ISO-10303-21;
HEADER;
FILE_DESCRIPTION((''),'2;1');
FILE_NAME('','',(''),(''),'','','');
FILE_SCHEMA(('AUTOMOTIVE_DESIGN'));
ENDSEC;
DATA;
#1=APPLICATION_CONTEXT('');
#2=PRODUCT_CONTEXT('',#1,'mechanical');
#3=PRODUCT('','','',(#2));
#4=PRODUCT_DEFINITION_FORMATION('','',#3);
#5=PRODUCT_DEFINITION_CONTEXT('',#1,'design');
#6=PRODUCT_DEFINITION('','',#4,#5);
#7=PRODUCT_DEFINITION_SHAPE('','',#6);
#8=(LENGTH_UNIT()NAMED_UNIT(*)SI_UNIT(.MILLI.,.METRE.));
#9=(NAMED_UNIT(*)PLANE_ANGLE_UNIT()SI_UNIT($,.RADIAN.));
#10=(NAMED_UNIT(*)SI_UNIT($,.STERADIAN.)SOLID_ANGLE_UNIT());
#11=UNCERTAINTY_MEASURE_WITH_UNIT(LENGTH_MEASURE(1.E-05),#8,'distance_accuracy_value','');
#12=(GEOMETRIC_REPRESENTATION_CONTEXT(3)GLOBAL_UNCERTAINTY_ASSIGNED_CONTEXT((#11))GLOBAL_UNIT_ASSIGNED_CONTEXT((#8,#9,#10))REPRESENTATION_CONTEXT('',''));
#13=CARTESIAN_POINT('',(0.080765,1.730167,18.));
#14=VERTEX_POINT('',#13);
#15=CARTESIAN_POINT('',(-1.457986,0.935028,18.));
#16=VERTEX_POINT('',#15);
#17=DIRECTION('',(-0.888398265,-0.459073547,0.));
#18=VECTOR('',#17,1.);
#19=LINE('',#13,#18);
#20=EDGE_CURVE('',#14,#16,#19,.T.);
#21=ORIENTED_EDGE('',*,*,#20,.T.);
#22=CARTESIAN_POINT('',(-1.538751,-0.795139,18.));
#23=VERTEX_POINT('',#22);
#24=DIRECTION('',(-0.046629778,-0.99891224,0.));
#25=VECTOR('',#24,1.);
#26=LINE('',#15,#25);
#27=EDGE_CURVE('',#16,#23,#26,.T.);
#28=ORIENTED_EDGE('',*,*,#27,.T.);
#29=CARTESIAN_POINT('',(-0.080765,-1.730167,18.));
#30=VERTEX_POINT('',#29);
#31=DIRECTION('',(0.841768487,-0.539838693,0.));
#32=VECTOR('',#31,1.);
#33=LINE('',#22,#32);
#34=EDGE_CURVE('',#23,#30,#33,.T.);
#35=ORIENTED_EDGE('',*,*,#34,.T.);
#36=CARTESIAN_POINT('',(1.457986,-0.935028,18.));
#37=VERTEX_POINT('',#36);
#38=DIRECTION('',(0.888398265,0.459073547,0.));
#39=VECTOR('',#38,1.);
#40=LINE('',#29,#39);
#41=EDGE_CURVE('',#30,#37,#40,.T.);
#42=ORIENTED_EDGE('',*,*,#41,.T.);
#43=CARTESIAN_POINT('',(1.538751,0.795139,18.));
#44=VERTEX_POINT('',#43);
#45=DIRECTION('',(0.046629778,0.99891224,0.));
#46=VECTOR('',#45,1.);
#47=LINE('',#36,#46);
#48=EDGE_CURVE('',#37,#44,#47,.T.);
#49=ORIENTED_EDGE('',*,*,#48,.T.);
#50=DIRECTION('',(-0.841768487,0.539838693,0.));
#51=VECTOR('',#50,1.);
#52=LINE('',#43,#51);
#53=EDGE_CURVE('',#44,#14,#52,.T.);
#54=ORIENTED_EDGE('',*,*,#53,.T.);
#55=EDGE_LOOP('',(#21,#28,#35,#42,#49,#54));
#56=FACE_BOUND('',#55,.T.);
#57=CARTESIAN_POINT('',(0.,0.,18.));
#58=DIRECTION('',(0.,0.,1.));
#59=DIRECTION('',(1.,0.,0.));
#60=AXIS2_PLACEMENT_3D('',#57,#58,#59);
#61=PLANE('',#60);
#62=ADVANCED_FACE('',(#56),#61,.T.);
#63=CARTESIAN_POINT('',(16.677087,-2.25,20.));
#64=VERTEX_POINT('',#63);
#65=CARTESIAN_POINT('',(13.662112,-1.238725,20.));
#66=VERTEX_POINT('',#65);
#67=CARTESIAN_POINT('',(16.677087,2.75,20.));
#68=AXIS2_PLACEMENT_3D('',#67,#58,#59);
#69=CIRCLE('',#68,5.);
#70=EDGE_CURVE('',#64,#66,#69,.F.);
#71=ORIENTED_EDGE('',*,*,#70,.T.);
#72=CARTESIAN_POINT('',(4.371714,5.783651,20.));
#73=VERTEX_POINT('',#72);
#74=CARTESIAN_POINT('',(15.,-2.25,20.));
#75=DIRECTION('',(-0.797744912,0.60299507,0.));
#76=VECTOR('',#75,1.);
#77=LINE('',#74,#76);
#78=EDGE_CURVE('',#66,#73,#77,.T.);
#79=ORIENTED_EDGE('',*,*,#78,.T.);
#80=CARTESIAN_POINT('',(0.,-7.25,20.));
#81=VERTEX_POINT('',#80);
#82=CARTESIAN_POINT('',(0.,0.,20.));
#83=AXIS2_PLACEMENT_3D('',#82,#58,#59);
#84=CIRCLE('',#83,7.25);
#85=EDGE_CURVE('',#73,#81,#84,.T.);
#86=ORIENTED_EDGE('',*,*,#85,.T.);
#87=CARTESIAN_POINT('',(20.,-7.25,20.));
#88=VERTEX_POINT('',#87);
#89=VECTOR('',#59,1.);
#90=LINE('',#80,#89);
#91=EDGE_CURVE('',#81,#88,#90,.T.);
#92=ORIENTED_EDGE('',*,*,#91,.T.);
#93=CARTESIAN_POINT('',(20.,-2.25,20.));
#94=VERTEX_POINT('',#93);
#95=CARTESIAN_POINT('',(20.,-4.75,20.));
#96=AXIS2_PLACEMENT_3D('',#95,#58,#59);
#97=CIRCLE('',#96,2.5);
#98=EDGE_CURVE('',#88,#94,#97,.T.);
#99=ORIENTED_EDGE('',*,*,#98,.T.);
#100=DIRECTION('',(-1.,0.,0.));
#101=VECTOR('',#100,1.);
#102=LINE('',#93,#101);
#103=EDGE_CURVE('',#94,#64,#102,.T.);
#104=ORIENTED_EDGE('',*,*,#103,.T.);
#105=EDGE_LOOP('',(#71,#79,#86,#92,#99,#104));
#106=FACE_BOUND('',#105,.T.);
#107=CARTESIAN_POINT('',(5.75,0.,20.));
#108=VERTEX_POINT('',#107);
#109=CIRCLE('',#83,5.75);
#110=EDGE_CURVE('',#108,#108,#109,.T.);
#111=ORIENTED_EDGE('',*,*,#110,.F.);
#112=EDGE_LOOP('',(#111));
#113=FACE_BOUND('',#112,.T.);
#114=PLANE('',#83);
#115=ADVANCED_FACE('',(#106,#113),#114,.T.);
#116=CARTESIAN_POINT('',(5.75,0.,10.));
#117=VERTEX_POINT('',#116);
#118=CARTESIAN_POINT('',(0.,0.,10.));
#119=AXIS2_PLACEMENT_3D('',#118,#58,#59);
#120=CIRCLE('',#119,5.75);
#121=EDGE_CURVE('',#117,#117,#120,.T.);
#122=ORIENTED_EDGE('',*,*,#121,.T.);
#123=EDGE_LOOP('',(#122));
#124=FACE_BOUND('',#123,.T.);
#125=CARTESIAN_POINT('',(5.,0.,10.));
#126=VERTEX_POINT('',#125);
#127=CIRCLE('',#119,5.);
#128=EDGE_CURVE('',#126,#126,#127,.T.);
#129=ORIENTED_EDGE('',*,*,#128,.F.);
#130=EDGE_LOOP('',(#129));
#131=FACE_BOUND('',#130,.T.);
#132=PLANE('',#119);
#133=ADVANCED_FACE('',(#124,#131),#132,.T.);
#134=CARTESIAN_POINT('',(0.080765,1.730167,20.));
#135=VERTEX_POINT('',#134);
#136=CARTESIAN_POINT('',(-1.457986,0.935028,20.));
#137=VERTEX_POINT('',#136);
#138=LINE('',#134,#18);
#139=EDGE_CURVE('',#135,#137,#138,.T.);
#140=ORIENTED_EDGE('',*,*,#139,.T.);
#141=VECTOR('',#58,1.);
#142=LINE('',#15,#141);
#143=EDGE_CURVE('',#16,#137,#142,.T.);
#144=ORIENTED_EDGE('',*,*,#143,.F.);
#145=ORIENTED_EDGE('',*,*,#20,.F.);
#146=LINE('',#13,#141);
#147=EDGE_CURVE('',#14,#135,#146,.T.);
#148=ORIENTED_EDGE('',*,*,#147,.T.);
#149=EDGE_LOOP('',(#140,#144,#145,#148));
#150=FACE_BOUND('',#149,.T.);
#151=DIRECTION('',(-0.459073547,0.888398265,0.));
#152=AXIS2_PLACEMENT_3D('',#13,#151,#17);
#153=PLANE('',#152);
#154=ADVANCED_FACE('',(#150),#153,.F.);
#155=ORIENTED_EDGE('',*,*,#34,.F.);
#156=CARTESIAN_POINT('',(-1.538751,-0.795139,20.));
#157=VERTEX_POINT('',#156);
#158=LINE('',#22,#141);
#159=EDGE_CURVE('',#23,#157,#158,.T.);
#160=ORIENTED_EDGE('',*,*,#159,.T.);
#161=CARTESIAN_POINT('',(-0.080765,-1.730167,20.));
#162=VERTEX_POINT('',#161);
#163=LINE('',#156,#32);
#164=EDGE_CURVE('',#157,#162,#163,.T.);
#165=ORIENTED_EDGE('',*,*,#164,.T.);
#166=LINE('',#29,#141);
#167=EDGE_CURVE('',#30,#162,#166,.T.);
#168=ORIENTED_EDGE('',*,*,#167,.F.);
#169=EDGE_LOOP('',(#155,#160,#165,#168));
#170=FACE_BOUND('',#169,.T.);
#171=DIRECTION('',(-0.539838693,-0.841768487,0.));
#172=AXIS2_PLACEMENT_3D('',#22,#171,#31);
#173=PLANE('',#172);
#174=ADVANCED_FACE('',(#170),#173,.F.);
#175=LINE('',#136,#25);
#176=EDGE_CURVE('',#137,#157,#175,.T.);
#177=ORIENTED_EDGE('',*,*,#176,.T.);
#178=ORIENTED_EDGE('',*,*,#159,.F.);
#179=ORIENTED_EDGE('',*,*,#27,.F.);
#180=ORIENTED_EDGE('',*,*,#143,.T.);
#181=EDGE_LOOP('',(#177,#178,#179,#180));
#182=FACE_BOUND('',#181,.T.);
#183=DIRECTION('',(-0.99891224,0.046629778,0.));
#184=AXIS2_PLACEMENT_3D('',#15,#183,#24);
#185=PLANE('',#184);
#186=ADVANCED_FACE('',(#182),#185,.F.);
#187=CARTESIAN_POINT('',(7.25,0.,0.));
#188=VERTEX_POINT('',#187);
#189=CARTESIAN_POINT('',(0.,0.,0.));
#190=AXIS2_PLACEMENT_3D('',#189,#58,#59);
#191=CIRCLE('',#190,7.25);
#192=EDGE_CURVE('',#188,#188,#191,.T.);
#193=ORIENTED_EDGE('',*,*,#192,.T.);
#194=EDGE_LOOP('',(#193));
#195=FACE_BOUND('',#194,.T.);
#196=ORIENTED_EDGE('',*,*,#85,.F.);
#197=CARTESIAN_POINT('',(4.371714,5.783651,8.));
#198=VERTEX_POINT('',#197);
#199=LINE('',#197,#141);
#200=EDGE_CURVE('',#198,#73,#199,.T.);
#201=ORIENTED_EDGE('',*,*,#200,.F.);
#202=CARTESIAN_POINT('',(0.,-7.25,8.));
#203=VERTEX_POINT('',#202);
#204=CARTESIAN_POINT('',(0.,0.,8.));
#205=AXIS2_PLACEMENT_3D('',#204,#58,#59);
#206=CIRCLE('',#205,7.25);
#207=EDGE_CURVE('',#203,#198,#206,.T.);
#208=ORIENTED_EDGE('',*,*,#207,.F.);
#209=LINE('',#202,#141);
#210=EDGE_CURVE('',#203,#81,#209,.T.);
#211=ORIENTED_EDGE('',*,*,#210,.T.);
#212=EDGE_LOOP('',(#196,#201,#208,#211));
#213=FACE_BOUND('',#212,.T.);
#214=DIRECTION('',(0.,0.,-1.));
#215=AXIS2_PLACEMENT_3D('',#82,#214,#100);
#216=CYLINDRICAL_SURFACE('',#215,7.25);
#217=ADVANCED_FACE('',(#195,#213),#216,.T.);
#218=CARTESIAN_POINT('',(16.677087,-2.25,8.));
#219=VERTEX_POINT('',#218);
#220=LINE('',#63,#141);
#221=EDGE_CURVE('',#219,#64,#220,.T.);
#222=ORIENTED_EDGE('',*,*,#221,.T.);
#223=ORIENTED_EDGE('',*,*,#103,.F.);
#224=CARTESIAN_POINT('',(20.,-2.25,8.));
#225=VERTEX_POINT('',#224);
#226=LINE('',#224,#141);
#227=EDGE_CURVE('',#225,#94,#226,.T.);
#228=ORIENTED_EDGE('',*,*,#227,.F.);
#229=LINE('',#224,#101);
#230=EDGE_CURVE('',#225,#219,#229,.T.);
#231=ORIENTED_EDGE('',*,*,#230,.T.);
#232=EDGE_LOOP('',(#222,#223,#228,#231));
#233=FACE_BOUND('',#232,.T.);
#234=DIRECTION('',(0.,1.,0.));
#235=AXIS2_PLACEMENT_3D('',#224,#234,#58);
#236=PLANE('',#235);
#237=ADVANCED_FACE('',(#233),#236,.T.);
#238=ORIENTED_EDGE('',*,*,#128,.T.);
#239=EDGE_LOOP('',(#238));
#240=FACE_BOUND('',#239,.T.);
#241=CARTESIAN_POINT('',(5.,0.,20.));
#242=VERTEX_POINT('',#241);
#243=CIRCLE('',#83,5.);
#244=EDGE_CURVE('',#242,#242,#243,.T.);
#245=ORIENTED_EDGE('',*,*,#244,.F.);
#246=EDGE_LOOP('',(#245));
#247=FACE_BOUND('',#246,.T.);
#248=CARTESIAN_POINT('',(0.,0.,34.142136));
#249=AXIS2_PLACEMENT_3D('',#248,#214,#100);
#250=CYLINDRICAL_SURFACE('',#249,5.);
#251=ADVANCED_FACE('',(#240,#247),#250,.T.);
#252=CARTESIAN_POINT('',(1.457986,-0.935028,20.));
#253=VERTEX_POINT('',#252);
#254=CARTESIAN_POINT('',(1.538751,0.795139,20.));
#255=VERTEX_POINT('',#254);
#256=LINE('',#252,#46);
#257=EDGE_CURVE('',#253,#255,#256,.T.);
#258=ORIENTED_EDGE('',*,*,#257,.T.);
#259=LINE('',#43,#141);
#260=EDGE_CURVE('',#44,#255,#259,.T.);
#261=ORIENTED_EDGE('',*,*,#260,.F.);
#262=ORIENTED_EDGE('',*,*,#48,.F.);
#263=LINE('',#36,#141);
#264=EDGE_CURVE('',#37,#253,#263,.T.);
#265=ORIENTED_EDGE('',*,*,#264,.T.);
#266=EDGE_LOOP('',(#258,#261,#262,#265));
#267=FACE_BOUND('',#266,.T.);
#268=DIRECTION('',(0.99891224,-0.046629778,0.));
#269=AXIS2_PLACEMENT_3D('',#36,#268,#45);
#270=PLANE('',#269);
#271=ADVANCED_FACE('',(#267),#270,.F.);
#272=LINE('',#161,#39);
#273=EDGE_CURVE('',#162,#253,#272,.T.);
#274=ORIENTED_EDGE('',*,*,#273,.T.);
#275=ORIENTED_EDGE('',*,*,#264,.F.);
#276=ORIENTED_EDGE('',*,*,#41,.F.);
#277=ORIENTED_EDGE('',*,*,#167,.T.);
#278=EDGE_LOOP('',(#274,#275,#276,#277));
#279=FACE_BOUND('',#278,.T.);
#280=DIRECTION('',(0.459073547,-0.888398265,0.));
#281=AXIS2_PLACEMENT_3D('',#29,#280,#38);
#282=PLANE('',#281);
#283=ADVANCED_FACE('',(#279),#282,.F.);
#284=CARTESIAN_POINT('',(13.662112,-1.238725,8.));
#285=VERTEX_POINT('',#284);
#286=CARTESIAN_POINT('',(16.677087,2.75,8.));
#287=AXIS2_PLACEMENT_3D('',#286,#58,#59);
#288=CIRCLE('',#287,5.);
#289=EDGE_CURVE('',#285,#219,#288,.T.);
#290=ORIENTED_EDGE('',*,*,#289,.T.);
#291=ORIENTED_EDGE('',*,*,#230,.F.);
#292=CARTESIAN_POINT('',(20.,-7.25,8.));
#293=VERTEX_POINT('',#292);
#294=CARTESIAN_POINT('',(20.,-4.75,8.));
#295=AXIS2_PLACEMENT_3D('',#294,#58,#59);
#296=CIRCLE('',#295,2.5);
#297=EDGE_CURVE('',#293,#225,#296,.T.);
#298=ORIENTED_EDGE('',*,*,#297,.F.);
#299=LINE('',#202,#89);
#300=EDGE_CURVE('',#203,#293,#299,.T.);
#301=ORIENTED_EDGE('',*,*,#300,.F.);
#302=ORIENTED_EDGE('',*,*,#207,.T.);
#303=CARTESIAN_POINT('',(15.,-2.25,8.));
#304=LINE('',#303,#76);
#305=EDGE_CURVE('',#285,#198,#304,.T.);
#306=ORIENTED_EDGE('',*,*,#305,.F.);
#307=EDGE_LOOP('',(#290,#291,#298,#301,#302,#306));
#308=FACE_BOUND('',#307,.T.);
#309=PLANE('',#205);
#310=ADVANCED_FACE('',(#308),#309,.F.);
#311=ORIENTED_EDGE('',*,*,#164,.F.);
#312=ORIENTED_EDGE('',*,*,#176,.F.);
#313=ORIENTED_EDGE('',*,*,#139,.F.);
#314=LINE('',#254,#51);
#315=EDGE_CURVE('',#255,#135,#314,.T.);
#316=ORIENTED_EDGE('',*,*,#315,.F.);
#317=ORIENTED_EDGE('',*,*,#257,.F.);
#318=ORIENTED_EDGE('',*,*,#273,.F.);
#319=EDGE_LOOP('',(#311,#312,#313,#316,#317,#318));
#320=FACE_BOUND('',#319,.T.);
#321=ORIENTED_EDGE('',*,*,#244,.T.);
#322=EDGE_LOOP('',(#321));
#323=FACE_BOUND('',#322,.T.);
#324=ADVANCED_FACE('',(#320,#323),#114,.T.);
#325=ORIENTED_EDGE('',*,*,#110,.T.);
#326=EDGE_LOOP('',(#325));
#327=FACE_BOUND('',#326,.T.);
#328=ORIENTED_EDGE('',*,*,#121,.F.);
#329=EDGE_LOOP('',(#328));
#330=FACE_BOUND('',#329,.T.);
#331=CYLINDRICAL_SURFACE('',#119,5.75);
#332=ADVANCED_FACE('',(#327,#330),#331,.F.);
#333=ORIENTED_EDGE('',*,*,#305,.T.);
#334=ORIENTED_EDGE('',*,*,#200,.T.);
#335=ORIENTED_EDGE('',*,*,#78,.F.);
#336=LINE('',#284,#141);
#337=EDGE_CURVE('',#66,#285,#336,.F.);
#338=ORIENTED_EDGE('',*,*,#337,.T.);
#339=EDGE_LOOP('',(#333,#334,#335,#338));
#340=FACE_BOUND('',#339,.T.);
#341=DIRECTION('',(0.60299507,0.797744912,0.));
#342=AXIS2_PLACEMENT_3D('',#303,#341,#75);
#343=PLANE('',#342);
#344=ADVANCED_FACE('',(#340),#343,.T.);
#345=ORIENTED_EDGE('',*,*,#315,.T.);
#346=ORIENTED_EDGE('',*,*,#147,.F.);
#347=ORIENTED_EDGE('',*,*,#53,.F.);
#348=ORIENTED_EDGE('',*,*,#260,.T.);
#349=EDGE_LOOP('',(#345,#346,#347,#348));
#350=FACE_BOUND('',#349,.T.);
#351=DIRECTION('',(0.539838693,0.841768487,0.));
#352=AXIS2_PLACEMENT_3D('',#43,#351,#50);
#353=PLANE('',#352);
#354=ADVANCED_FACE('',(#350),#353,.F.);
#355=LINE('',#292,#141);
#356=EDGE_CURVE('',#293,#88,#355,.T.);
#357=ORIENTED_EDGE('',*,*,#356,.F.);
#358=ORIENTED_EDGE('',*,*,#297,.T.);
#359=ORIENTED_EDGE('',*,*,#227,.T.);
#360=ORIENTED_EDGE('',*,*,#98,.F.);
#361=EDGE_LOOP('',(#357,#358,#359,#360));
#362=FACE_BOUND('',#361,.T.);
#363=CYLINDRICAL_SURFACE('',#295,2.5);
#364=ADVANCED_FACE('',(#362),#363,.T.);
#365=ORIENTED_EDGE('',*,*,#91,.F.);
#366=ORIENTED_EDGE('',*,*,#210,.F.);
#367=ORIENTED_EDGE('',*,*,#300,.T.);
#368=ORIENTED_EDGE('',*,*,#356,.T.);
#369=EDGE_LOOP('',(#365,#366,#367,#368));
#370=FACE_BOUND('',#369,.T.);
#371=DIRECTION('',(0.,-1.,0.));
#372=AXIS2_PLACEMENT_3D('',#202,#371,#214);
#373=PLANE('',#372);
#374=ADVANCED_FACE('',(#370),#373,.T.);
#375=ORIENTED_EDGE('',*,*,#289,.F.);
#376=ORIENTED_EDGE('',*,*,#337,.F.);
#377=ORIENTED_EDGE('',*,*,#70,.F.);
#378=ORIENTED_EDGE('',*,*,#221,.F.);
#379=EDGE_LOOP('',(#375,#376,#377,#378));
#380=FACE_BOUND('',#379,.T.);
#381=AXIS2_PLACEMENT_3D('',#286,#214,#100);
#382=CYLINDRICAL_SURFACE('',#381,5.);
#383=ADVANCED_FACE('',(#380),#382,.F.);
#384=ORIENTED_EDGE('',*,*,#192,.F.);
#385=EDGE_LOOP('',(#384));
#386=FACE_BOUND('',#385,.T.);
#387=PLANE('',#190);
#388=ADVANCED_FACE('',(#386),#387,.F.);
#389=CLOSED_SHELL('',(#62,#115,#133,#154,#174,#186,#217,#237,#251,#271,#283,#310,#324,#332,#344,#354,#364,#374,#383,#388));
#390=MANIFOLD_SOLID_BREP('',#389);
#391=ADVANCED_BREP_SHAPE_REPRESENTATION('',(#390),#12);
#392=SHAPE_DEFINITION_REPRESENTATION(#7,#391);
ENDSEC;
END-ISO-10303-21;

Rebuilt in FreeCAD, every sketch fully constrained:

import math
import FreeCAD as App
import Part
import Sketcher

V = App.Vector


def edges_at(feature, points):
    """Names of the edges that pass closest to the given points."""
    edges = feature.Shape.Edges
    near = lambda p: min(range(len(edges)), key=lambda i: edges[i].distToShape(Part.Vertex(*p))[0])
    return sorted({f"Edge{near(p) + 1}" for p in points})


def add_polygon(sketch, points):
    """Adds a closed chain of lines whose ends are joined by coincident constraints."""
    first, n = sketch.GeometryCount, len(points)
    for a, b in zip(points, points[1:] + points[:1]):
        sketch.addGeometry(Part.LineSegment(App.Vector(*a, 0), App.Vector(*b, 0)), False)
    for i in range(n):
        sketch.addConstraint(Sketcher.Constraint("Coincident", first + i, 2, first + (i + 1) % n, 1))

doc = App.newDocument("Part")
params = doc.addObject("Spreadsheet::Sheet", "Params")
for row, (alias, value) in enumerate([
    ("sketch1_diameter", "14.5 mm"),
    ("pad1_length", "20 mm"),
    ("sketch2_radius", "2.5 mm"),
    ("sketch2_width", "20 mm"),
    ("sketch2_width2", "5 mm"),
    ("sketch2_radius2", "7.25 mm"),
    ("pad2_length", "12 mm"),
    ("fillet_radius", "5 mm"),
    ("sketch3_diameter", "11.5 mm"),
    ("pocket1_length", "10 mm"),
    ("sketch4_diameter", "10 mm"),
    ("pad3_length", "10 mm"),
    ("pocket2_length", "2 mm"),
], start=1):
    params.set(f"A{row}", alias)
    params.set(f"B{row}", "=" + value)
    params.setAlias(f"B{row}", alias)

body = doc.addObject("PartDesign::Body", "Body")

sketch1 = body.newObject("Sketcher::SketchObject", "Sketch")
sketch1.AttachmentSupport = (doc.getObject("XY_Plane"), [""])
sketch1.MapMode = "FlatFace"
sketch1.addGeometry(Part.Circle(V(0, 0, 0), V(0, 0, 1), 7), False)
sketch1.addConstraint(Sketcher.Constraint("Coincident", 0, 3, -1, 1))
sketch1.addConstraint(Sketcher.Constraint("Diameter", 0, 14.5))
sketch1.setExpression("Constraints[1]", "Params.sketch1_diameter")
pad1 = body.newObject("PartDesign::Pad", "Pad")
pad1.Profile = sketch1
pad1.setExpression("Length", "Params.pad1_length")

sketch2 = body.newObject("Sketcher::SketchObject", "Sketch001")
sketch2.AttachmentSupport = (doc.getObject("XY_Plane"), [""])
sketch2.MapMode = "FlatFace"
sketch2.AttachmentOffset = App.Placement(V(0, 0, 20), App.Rotation())
sketch2.addGeometry(Part.LineSegment(V(0, -7.2, 0), V(20, -7.2, 0)), False)
sketch2.addGeometry(Part.ArcOfCircle(Part.Circle(V(20, -4.8, 0), V(0, 0, 1), 2.5), math.radians(-90), math.radians(90)), False)
sketch2.addGeometry(Part.LineSegment(V(20, -2.2, 0), V(15, -2.2, 0)), False)
sketch2.addGeometry(Part.LineSegment(V(15, -2.2, 0), V(4.4, 5.8, 0)), False)
sketch2.addGeometry(Part.ArcOfCircle(Part.Circle(V(0, 0, 0), V(0, 0, 1), 7.2), math.radians(53), math.radians(270)), False)
sketch2.addConstraint(Sketcher.Constraint("Tangent", 0, 2, 1, 1))
sketch2.addConstraint(Sketcher.Constraint("Tangent", 1, 2, 2, 1))
sketch2.addConstraint(Sketcher.Constraint("Coincident", 2, 2, 3, 1))
sketch2.addConstraint(Sketcher.Constraint("Tangent", 3, 2, 4, 1))
sketch2.addConstraint(Sketcher.Constraint("Tangent", 4, 2, 0, 1))
sketch2.addConstraint(Sketcher.Constraint("Horizontal", 0))
sketch2.addConstraint(Sketcher.Constraint("Horizontal", 2))
sketch2.addConstraint(Sketcher.Constraint("Coincident", 4, 3, -1, 1))
sketch2.addConstraint(Sketcher.Constraint("Radius", 1, 2.5))
sketch2.addConstraint(Sketcher.Constraint("DistanceX", 0, 1, 0, 2, 20.0))
sketch2.addConstraint(Sketcher.Constraint("DistanceX", 2, 2, 2, 1, 5.0))
sketch2.addConstraint(Sketcher.Constraint("Radius", 4, 7.25))
sketch2.setExpression("Constraints[8]", "Params.sketch2_radius")
sketch2.setExpression("Constraints[9]", "Params.sketch2_width")
sketch2.setExpression("Constraints[10]", "Params.sketch2_width2")
sketch2.setExpression("Constraints[11]", "Params.sketch2_radius2")
pad2 = body.newObject("PartDesign::Pad", "Pad001")
pad2.Profile = sketch2
pad2.setExpression("Length", "Params.pad2_length")
pad2.Reversed = True
doc.recompute()

fillet = body.newObject("PartDesign::Fillet", "Fillet")
fillet.Base = (pad2, edges_at(pad2, [(15, -2.25, 14)]))
fillet.setExpression("Radius", "Params.fillet_radius")

sketch3 = body.newObject("Sketcher::SketchObject", "Sketch002")
sketch3.AttachmentSupport = (doc.getObject("XY_Plane"), [""])
sketch3.MapMode = "FlatFace"
sketch3.AttachmentOffset = App.Placement(V(0, 0, 20), App.Rotation())
sketch3.addGeometry(Part.Circle(V(0, 0, 0), V(0, 0, 1), 6), False)
sketch3.addConstraint(Sketcher.Constraint("Coincident", 0, 3, -1, 1))
sketch3.addConstraint(Sketcher.Constraint("Diameter", 0, 11.5))
sketch3.setExpression("Constraints[1]", "Params.sketch3_diameter")
pocket1 = body.newObject("PartDesign::Pocket", "Pocket")
pocket1.Profile = sketch3
pocket1.setExpression("Length", "Params.pocket1_length")

sketch4 = body.newObject("Sketcher::SketchObject", "Sketch003")
sketch4.AttachmentSupport = (doc.getObject("XY_Plane"), [""])
sketch4.MapMode = "FlatFace"
sketch4.AttachmentOffset = App.Placement(V(0, 0, 10), App.Rotation())
sketch4.addGeometry(Part.Circle(V(0, 0, 0), V(0, 0, 1), 5), False)
sketch4.addConstraint(Sketcher.Constraint("Coincident", 0, 3, -1, 1))
sketch4.addConstraint(Sketcher.Constraint("Diameter", 0, 10.0))
sketch4.setExpression("Constraints[1]", "Params.sketch4_diameter")
pad3 = body.newObject("PartDesign::Pad", "Pad002")
pad3.Profile = sketch4
pad3.setExpression("Length", "Params.pad3_length")

sketch5 = body.newObject("Sketcher::SketchObject", "Sketch004")
sketch5.AttachmentSupport = (doc.getObject("XY_Plane"), [""])
sketch5.MapMode = "FlatFace"
sketch5.AttachmentOffset = App.Placement(V(0, 0, 20), App.Rotation())
add_polygon(sketch5, [(1.5, -0.9), (1.5, 0.8), (0.1, 1.7), (-1.5, 0.9), (-1.5, -0.8), (-0.1, -1.7)])
sketch5.addConstraint(Sketcher.Constraint("Symmetric", 0, 2, 3, 2, -1, 1))
sketch5.addConstraint(Sketcher.Constraint("Symmetric", 1, 2, 4, 2, -1, 1))
sketch5.addConstraint(Sketcher.Constraint("Symmetric", 2, 2, 5, 2, -1, 1))
sketch5.addConstraint(Sketcher.Constraint("Equal", 0, 1))
sketch5.addConstraint(Sketcher.Constraint("Equal", 1, 2))
sketch5.addConstraint(Sketcher.Constraint("DistanceX", 3, 2, 0, 2, 3.077502))
sketch5.addConstraint(Sketcher.Constraint("Distance", 0, 1.732051))
sketch5.addConstraint(Sketcher.Constraint("DistanceY", -1, 1, 0, 2, 0.795139))
sketch5.addConstraint(Sketcher.Constraint("DistanceY", -1, 1, 2, 2, 0.935028))
pocket2 = body.newObject("PartDesign::Pocket", "Pocket001")
pocket2.Profile = sketch5
pocket2.setExpression("Length", "Params.pocket2_length")

doc.recompute()
